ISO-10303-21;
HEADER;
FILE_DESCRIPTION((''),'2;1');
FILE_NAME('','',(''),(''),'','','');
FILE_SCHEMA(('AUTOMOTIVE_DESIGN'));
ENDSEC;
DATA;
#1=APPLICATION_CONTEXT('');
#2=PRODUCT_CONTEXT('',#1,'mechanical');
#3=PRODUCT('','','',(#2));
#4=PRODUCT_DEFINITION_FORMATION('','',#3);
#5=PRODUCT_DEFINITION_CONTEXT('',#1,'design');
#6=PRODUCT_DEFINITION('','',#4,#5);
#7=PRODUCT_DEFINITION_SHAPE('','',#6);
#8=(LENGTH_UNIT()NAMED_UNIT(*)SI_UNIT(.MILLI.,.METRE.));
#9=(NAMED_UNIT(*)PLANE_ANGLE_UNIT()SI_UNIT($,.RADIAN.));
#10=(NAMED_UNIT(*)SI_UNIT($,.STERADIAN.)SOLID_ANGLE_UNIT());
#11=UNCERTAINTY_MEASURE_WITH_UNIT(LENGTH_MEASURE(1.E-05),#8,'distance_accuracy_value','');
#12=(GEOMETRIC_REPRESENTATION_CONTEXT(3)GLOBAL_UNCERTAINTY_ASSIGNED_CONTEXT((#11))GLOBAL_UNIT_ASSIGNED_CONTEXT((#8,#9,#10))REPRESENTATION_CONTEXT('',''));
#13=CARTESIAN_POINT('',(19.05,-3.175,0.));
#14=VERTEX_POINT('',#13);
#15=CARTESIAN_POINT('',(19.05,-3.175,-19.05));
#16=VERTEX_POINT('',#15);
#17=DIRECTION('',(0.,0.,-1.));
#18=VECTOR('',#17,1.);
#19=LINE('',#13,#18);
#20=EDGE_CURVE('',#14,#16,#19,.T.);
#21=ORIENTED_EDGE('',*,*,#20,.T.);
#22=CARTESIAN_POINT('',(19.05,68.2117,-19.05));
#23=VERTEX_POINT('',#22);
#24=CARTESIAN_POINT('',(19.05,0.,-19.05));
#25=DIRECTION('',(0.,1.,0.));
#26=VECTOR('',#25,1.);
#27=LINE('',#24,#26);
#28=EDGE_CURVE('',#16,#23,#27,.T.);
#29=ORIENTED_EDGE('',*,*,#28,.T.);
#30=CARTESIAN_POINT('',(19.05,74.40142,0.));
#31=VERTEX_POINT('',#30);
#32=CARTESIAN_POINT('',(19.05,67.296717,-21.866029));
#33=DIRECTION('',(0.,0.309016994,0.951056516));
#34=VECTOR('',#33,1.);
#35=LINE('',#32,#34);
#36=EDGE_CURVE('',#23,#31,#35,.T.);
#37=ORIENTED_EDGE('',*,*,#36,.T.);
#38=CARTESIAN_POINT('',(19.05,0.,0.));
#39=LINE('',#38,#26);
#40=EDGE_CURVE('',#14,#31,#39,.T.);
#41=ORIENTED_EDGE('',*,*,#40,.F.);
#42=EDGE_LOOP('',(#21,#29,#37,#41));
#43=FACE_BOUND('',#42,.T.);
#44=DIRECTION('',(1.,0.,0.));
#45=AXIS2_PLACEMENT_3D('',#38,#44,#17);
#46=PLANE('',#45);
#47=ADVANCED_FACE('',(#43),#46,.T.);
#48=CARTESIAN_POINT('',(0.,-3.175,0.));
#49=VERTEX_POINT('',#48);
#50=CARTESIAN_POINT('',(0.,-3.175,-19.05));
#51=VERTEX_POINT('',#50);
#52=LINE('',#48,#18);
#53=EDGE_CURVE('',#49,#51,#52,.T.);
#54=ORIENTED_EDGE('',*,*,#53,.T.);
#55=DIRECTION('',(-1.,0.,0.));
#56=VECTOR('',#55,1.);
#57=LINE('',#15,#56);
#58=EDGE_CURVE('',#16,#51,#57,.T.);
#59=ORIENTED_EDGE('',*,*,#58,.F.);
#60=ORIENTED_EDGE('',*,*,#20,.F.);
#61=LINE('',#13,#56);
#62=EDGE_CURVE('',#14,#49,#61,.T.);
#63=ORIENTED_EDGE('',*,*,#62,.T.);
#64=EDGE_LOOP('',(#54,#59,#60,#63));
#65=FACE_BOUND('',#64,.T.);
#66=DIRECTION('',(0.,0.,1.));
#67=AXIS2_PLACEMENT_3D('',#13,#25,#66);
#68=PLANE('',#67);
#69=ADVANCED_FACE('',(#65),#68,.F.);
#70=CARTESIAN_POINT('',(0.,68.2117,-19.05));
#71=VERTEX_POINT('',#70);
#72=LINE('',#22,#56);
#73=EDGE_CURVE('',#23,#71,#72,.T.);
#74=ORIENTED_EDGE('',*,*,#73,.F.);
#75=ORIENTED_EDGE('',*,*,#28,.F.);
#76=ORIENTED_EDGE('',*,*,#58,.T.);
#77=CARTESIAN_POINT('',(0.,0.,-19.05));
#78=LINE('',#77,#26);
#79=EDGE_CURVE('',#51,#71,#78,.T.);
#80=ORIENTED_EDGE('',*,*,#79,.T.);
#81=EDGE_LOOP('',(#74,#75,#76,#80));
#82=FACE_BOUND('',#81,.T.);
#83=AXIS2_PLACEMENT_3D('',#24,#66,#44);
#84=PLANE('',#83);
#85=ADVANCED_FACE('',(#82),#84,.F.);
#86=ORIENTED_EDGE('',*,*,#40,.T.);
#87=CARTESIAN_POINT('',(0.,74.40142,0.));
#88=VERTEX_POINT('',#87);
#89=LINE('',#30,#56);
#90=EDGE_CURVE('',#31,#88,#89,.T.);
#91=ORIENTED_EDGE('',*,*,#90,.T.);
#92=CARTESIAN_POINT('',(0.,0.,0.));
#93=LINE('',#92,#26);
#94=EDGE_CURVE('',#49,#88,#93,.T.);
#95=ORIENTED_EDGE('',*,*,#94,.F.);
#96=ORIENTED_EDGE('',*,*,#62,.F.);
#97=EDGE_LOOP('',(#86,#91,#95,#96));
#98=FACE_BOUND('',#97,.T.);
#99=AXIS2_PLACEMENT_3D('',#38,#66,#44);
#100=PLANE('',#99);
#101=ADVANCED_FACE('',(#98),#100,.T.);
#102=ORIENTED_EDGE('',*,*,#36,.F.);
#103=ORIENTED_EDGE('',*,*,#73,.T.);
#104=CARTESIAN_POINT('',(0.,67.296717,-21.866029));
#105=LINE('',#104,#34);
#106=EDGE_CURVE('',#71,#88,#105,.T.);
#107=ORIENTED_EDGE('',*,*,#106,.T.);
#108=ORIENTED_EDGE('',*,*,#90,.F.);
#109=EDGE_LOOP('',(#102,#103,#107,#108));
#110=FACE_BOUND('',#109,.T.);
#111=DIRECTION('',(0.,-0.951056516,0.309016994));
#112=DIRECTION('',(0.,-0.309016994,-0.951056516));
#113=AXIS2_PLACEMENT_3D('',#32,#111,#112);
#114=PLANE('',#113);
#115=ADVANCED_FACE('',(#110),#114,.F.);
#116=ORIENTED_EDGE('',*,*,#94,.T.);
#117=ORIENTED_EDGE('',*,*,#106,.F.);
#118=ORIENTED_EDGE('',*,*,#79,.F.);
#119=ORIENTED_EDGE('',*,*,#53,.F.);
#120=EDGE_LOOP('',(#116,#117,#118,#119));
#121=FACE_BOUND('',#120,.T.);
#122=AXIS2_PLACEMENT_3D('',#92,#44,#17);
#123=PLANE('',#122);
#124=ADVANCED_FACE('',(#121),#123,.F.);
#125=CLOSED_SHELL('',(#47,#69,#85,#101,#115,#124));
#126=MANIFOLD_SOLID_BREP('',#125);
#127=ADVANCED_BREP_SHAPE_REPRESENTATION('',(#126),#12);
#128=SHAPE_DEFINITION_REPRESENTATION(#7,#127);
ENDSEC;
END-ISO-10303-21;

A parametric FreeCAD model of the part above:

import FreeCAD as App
import Part
import Sketcher

V = App.Vector
Q = App.Units.Quantity

doc = App.newDocument("Part")
body = doc.addObject("PartDesign::Body", "Body")

# Sketch on YZ plane
sketch1 = body.newObject("Sketcher::SketchObject", "Sketch")
sketch1.AttachmentSupport = (doc.getObject("YZ_Plane"), [""])
sketch1.MapMode = "FlatFace"
sketch1.addGeometry([
    Part.LineSegment(V(74, 0, 0), V(-3, 0, 0)),
    Part.LineSegment(V(-3, 0, 0), V(-3, -19, 0)),
    Part.LineSegment(V(-3, -19, 0), V(68, -19, 0)),
    Part.LineSegment(V(68, -19, 0), V(74, 0, 0)),
], False)
sketch1.addConstraint([
    Sketcher.Constraint("Coincident", 0, 2, 1, 1),
    Sketcher.Constraint("Coincident", 1, 2, 2, 1),
    Sketcher.Constraint("Coincident", 2, 2, 3, 1),
    Sketcher.Constraint("Coincident", 3, 2, 0, 1),
    Sketcher.Constraint("Horizontal", 0),
    Sketcher.Constraint("Vertical", 1),
    Sketcher.Constraint("Horizontal", 2),
    Sketcher.Constraint("PointOnObject", 0, 2, -1),
    Sketcher.Constraint("Angle", 3, Q("72 deg")),
    Sketcher.Constraint("DistanceY", 1, 2, 1, 1, Q("0.75 in")),
    Sketcher.Constraint("DistanceX", 2, 1, 2, 2, Q("2.8105 in")),
    Sketcher.Constraint("DistanceX", 0, 2, -1, 1, Q("0.125 in")),
])
pad1 = body.newObject("PartDesign::Pad", "Pad")
pad1.Profile = sketch1
pad1.Length = Q("0.75 in")

doc.recompute()
